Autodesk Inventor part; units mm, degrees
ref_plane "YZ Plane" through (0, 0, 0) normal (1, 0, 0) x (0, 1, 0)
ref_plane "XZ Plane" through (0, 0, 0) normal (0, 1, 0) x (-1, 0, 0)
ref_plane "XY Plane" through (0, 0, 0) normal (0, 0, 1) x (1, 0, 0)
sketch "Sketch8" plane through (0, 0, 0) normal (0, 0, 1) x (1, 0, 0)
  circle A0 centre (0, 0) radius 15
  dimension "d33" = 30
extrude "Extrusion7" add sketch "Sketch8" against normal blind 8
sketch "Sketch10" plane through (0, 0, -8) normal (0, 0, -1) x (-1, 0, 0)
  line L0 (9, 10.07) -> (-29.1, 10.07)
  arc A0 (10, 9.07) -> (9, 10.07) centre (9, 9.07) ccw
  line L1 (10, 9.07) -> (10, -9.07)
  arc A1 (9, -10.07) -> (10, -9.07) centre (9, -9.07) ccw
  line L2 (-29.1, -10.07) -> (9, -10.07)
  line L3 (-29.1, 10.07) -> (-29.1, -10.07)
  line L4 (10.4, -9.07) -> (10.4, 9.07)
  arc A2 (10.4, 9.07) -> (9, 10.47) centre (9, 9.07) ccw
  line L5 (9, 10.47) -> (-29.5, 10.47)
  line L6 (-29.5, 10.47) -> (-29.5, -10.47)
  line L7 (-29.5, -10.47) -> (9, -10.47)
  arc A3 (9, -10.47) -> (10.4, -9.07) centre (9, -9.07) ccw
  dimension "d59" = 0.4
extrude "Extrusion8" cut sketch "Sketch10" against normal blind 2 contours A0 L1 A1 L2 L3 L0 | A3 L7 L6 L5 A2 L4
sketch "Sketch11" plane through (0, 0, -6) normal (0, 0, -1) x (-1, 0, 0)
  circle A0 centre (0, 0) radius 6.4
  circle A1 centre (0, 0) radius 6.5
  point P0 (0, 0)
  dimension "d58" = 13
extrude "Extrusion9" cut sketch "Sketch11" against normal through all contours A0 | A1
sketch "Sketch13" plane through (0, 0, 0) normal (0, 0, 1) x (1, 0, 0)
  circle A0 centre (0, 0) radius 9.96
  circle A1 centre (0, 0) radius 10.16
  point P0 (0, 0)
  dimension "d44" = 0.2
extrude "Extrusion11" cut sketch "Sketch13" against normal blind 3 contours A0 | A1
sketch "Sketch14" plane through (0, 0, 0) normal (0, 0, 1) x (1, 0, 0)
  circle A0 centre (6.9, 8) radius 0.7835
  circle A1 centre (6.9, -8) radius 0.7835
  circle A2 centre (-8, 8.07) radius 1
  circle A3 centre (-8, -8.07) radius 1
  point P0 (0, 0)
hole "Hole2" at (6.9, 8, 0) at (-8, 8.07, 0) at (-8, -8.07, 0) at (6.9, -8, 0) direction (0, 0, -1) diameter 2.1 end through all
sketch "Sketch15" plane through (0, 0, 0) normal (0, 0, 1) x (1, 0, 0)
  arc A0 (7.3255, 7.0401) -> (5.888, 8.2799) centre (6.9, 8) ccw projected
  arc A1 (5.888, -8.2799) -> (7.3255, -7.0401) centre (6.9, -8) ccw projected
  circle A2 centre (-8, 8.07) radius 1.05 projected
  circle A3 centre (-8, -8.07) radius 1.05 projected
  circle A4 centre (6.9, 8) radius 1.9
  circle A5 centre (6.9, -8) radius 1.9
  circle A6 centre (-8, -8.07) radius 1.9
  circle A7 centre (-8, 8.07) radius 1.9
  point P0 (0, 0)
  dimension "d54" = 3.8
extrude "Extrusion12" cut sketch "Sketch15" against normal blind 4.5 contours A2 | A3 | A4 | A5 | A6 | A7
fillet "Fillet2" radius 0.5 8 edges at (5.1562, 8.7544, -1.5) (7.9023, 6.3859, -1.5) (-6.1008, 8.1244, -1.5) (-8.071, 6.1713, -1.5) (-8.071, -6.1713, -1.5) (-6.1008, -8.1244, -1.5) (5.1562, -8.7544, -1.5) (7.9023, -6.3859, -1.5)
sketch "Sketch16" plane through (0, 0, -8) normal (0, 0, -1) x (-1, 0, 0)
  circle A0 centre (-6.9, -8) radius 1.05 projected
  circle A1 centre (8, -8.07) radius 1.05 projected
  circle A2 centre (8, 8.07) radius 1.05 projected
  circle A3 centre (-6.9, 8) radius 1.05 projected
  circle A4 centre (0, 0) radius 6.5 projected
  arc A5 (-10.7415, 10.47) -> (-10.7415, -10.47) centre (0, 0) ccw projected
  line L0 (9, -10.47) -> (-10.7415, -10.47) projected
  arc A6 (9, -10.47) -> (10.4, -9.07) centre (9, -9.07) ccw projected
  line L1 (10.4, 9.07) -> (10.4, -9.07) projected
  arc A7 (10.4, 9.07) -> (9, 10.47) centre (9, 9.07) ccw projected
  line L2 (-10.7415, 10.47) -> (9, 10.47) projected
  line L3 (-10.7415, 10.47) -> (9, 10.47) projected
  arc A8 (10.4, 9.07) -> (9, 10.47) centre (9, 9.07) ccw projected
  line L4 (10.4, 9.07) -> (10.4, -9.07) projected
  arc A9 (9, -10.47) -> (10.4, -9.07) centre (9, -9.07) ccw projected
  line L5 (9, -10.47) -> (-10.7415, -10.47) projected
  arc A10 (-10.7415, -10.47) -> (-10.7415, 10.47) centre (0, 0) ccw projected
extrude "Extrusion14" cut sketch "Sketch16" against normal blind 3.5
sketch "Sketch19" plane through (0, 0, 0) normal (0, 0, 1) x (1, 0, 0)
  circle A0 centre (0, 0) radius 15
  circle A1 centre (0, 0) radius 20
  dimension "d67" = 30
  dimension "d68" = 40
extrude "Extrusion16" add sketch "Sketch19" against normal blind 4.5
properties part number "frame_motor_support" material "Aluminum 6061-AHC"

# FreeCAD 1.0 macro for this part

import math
import FreeCAD as App
import Part
import Sketcher
Q = App.Units.Quantity


def edges_at(feature, points):
    """Names of the edges that pass closest to the given points."""
    edges = feature.Shape.Edges
    near = lambda p: min(range(len(edges)), key=lambda i: edges[i].distToShape(Part.Vertex(*p))[0])
    return sorted({f"Edge{near(p) + 1}" for p in points})

doc = App.newDocument("Part")
body = doc.addObject("PartDesign::Body", "Body")

sketch1 = doc.addObject("Sketcher::SketchObject", "Sketch")
body.addObject(sketch1)
sketch1.AttachmentSupport = (doc.XY_Plane, [""])
sketch1.MapMode = "FlatFace"
sketch1.addGeometry(Part.Circle(App.Vector(0, 0, 0), App.Vector(0, 0, 1), 15), False)
sketch1.addConstraint(Sketcher.Constraint("Coincident", 0, 3, -1, 1))
sketch1.addConstraint(Sketcher.Constraint("Diameter", 0, Q("30 mm")))
pad1 = doc.addObject("PartDesign::Pad", "Pad")
body.addObject(pad1)
pad1.Profile = sketch1
pad1.Length = 8
pad1.Reversed = True

sketch2 = doc.addObject("Sketcher::SketchObject", "Sketch001")
body.addObject(sketch2)
sketch2.AttachmentSupport = (doc.XY_Plane, [""])
sketch2.MapMode = "FlatFace"
sketch2.AttachmentOffset = App.Placement(App.Vector(0, 0, -8), App.Rotation())
sketch2.addGeometry(Part.ArcOfCircle(Part.Circle(App.Vector(-9, -9.1, 0), App.Vector(0, 0, 1), 1.4), math.radians(180), math.radians(270)), False)
sketch2.addGeometry(Part.LineSegment(App.Vector(-10.4, -9.1, 0), App.Vector(-10.4, 9.1, 0)), False)
sketch2.addGeometry(Part.ArcOfCircle(Part.Circle(App.Vector(-9, 9.1, 0), App.Vector(0, 0, 1), 1.4), math.radians(90), math.radians(180)), False)
sketch2.addGeometry(Part.LineSegment(App.Vector(-9, 10.5, 0), App.Vector(29.5, 10.5, 0)), False)
sketch2.addGeometry(Part.LineSegment(App.Vector(29.5, 10.5, 0), App.Vector(29.5, -10.5, 0)), False)
sketch2.addGeometry(Part.LineSegment(App.Vector(29.5, -10.5, 0), App.Vector(-9, -10.5, 0)), False)
sketch2.addConstraint(Sketcher.Constraint("Tangent", 0, 1, 1, 1))
sketch2.addConstraint(Sketcher.Constraint("Tangent", 1, 2, 2, 2))
sketch2.addConstraint(Sketcher.Constraint("Tangent", 2, 1, 3, 1))
sketch2.addConstraint(Sketcher.Constraint("Coincident", 3, 2, 4, 1))
sketch2.addConstraint(Sketcher.Constraint("Coincident", 4, 2, 5, 1))
sketch2.addConstraint(Sketcher.Constraint("Tangent", 5, 2, 0, 2))
sketch2.addConstraint(Sketcher.Constraint("Vertical", 1))
sketch2.addConstraint(Sketcher.Constraint("Horizontal", 3))
sketch2.addConstraint(Sketcher.Constraint("Vertical", 4))
sketch2.addConstraint(Sketcher.Constraint("Horizontal", 5))
sketch2.addConstraint(Sketcher.Constraint("Equal", 0, 2))
sketch2.addConstraint(Sketcher.Constraint("Radius", 0, Q("1.4 mm")))
sketch2.addConstraint(Sketcher.Constraint("DistanceX", 3, 1, 3, 2, Q("38.5 mm")))
sketch2.addConstraint(Sketcher.Constraint("DistanceX", 0, 3, -1, 1, Q("9 mm")))
sketch2.addConstraint(Sketcher.Constraint("DistanceY", 1, 1, 1, 2, Q("18.14 mm")))
sketch2.addConstraint(Sketcher.Constraint("DistanceY", 0, 3, -1, 1, Q("9.07 mm")))
pocket1 = doc.addObject("PartDesign::Pocket", "Pocket")
body.addObject(pocket1)
pocket1.Profile = sketch2
pocket1.Length = 2
pocket1.Reversed = True

sketch3 = doc.addObject("Sketcher::SketchObject", "Sketch002")
body.addObject(sketch3)
sketch3.AttachmentSupport = (doc.XY_Plane, [""])
sketch3.MapMode = "FlatFace"
sketch3.AttachmentOffset = App.Placement(App.Vector(0, 0, -6), App.Rotation())
sketch3.addGeometry(Part.Circle(App.Vector(0, 0, 0), App.Vector(0, 0, 1), 6), False)
sketch3.addConstraint(Sketcher.Constraint("Coincident", 0, 3, -1, 1))
sketch3.addConstraint(Sketcher.Constraint("Diameter", 0, Q("13 mm")))
pocket2 = doc.addObject("PartDesign::Pocket", "Pocket001")
body.addObject(pocket2)
pocket2.Profile = sketch3
pocket2.Type = "ThroughAll"
pocket2.Reversed = True

sketch4 = doc.addObject("Sketcher::SketchObject", "Sketch003")
body.addObject(sketch4)
sketch4.AttachmentSupport = (doc.XY_Plane, [""])
sketch4.MapMode = "FlatFace"
sketch4.addGeometry(Part.Circle(App.Vector(0, 0, 0), App.Vector(0, 0, 1), 10), False)
sketch4.addConstraint(Sketcher.Constraint("Coincident", 0, 3, -1, 1))
sketch4.addConstraint(Sketcher.Constraint("Diameter", 0, Q("20.32 mm")))
pocket3 = doc.addObject("PartDesign::Pocket", "Pocket002")
body.addObject(pocket3)
pocket3.Profile = sketch4
pocket3.Length = 3

sketch5 = doc.addObject("Sketcher::SketchObject", "Sketch004")
body.addObject(sketch5)
sketch5.AttachmentSupport = (doc.XY_Plane, [""])
sketch5.MapMode = "FlatFace"
sketch5.addGeometry(Part.Circle(App.Vector(6.9, 8, 0), App.Vector(0, 0, 1), 1.1), False)
sketch5.addGeometry(Part.Circle(App.Vector(-8, 8.1, 0), App.Vector(0, 0, 1), 1.1), False)
sketch5.addGeometry(Part.Circle(App.Vector(-8, -8.1, 0), App.Vector(0, 0, 1), 1.1), False)
sketch5.addGeometry(Part.Circle(App.Vector(6.9, -8, 0), App.Vector(0, 0, 1), 1.1), False)
sketch5.addConstraint(Sketcher.Constraint("Equal", 0, 1))
sketch5.addConstraint(Sketcher.Constraint("Equal", 1, 2))
sketch5.addConstraint(Sketcher.Constraint("Equal", 2, 3))
sketch5.addConstraint(Sketcher.Constraint("Symmetric", 1, 3, 2, 3, -1))
sketch5.addConstraint(Sketcher.Constraint("Symmetric", 0, 3, 3, 3, -1))
sketch5.addConstraint(Sketcher.Constraint("Diameter", 0, Q("2.1 mm")))
sketch5.addConstraint(Sketcher.Constraint("DistanceY", -1, 1, 0, 3, Q("8 mm")))
sketch5.addConstraint(Sketcher.Constraint("DistanceX", 1, 3, -1, 1, Q("8 mm")))
sketch5.addConstraint(Sketcher.Constraint("DistanceX", -1, 1, 0, 3, Q("6.9 mm")))
sketch5.addConstraint(Sketcher.Constraint("DistanceY", -1, 1, 1, 3, Q("8.07 mm")))
doc.recompute()
hole = doc.addObject("PartDesign::Hole", "Hole")
body.addObject(hole)
hole.Profile = sketch5
hole.ThreadType = "None"
hole.Diameter = 2.1
hole.DepthType = "ThroughAll"

sketch6 = doc.addObject("Sketcher::SketchObject", "Sketch005")
body.addObject(sketch6)
sketch6.AttachmentSupport = (doc.XY_Plane, [""])
sketch6.MapMode = "FlatFace"
sketch6.addGeometry(Part.Circle(App.Vector(-8, 8.1, 0), App.Vector(0, 0, 1), 1.9), False)
sketch6.addGeometry(Part.Circle(App.Vector(-8, -8.1, 0), App.Vector(0, 0, 1), 1.9), False)
sketch6.addGeometry(Part.Circle(App.Vector(6.9, 8, 0), App.Vector(0, 0, 1), 1.9), False)
sketch6.addGeometry(Part.Circle(App.Vector(6.9, -8, 0), App.Vector(0, 0, 1), 1.9), False)
sketch6.addConstraint(Sketcher.Constraint("Equal", 0, 1))
sketch6.addConstraint(Sketcher.Constraint("Equal", 1, 2))
sketch6.addConstraint(Sketcher.Constraint("Equal", 2, 3))
sketch6.addConstraint(Sketcher.Constraint("Symmetric", 0, 3, 1, 3, -1))
sketch6.addConstraint(Sketcher.Constraint("Symmetric", 2, 3, 3, 3, -1))
sketch6.addConstraint(Sketcher.Constraint("Diameter", 0, Q("3.8 mm")))
sketch6.addConstraint(Sketcher.Constraint("DistanceX", 0, 3, -1, 1, Q("8 mm")))
sketch6.addConstraint(Sketcher.Constraint("DistanceY", -1, 1, 2, 3, Q("8 mm")))
sketch6.addConstraint(Sketcher.Constraint("DistanceX", -1, 1, 2, 3, Q("6.9 mm")))
sketch6.addConstraint(Sketcher.Constraint("DistanceY", -1, 1, 0, 3, Q("8.07 mm")))
pocket4 = doc.addObject("PartDesign::Pocket", "Pocket003")
body.addObject(pocket4)
pocket4.Profile = sketch6
pocket4.Length = 4.5
doc.recompute()

fillet = doc.addObject("PartDesign::Fillet", "Fillet")
body.addObject(fillet)
fillet.Base = (pocket4, edges_at(pocket4, [
    (5.156, 8.754, -1.5),
    (7.902, 6.386, -1.5),
    (-6.101, 8.124, -1.5),
    (-8.071, 6.171, -1.5),
    (-8.071, -6.171, -1.5),
    (-6.101, -8.124, -1.5),
    (5.156, -8.754, -1.5),
    (7.902, -6.386, -1.5),
]))
fillet.Radius = 0.5

sketch7 = doc.addObject("Sketcher::SketchObject", "Sketch006")
body.addObject(sketch7)
sketch7.AttachmentSupport = (doc.XY_Plane, [""])
sketch7.MapMode = "FlatFace"
sketch7.AttachmentOffset = App.Placement(App.Vector(0, 0, -8), App.Rotation())
sketch7.addGeometry(Part.Circle(App.Vector(0, 0, 0), App.Vector(0, 0, 1), 15), False)
sketch7.addGeometry(Part.Circle(App.Vector(6.9, -8, 0), App.Vector(0, 0, 1), 1.1), False)
sketch7.addGeometry(Part.Circle(App.Vector(-8, -8.1, 0), App.Vector(0, 0, 1), 1.1), False)
sketch7.addGeometry(Part.Circle(App.Vector(6.9, 8, 0), App.Vector(0, 0, 1), 1.1), False)
sketch7.addGeometry(Part.Circle(App.Vector(0, 0, 0), App.Vector(0, 0, 1), 6.5), False)
sketch7.addGeometry(Part.Circle(App.Vector(-8, 8.1, 0), App.Vector(0, 0, 1), 1.1), False)
sketch7.addConstraint(Sketcher.Constraint("Coincident", 0, 3, -1, 1))
sketch7.addConstraint(Sketcher.Constraint("Coincident", 4, 3, -1, 1))
sketch7.addConstraint(Sketcher.Constraint("Equal", 1, 2))
sketch7.addConstraint(Sketcher.Constraint("Equal", 2, 3))
sketch7.addConstraint(Sketcher.Constraint("Equal", 3, 5))
sketch7.addConstraint(Sketcher.Constraint("Symmetric", 1, 3, 3, 3, -1))
sketch7.addConstraint(Sketcher.Constraint("Symmetric", 2, 3, 5, 3, -1))
sketch7.addConstraint(Sketcher.Constraint("Diameter", 0, Q("30 mm")))
sketch7.addConstraint(Sketcher.Constraint("Diameter", 4, Q("13 mm")))
sketch7.addConstraint(Sketcher.Constraint("Diameter", 1, Q("2.1 mm")))
sketch7.addConstraint(Sketcher.Constraint("DistanceY", 1, 3, -1, 1, Q("8 mm")))
sketch7.addConstraint(Sketcher.Constraint("DistanceX", 2, 3, -1, 1, Q("8 mm")))
sketch7.addConstraint(Sketcher.Constraint("DistanceX", -1, 1, 1, 3, Q("6.9 mm")))
sketch7.addConstraint(Sketcher.Constraint("DistanceY", 2, 3, -1, 1, Q("8.07 mm")))
pocket5 = doc.addObject("PartDesign::Pocket", "Pocket004")
body.addObject(pocket5)
pocket5.Profile = sketch7
pocket5.Length = 3.5
pocket5.Reversed = True

sketch8 = doc.addObject("Sketcher::SketchObject", "Sketch007")
body.addObject(sketch8)
sketch8.AttachmentSupport = (doc.XY_Plane, [""])
sketch8.MapMode = "FlatFace"
sketch8.addGeometry(Part.Circle(App.Vector(0, 0, 0), App.Vector(0, 0, 1), 20), False)
sketch8.addGeometry(Part.Circle(App.Vector(0, 0, 0), App.Vector(0, 0, 1), 15), False)
sketch8.addConstraint(Sketcher.Constraint("Coincident", 0, 3, -1, 1))
sketch8.addConstraint(Sketcher.Constraint("Coincident", 1, 3, -1, 1))
sketch8.addConstraint(Sketcher.Constraint("Diameter", 0, Q("40 mm")))
sketch8.addConstraint(Sketcher.Constraint("Diameter", 1, Q("30 mm")))
pad2 = doc.addObject("PartDesign::Pad", "Pad001")
body.addObject(pad2)
pad2.Profile = sketch8
pad2.Length = 4.5
pad2.Reversed = True

doc.recompute()
